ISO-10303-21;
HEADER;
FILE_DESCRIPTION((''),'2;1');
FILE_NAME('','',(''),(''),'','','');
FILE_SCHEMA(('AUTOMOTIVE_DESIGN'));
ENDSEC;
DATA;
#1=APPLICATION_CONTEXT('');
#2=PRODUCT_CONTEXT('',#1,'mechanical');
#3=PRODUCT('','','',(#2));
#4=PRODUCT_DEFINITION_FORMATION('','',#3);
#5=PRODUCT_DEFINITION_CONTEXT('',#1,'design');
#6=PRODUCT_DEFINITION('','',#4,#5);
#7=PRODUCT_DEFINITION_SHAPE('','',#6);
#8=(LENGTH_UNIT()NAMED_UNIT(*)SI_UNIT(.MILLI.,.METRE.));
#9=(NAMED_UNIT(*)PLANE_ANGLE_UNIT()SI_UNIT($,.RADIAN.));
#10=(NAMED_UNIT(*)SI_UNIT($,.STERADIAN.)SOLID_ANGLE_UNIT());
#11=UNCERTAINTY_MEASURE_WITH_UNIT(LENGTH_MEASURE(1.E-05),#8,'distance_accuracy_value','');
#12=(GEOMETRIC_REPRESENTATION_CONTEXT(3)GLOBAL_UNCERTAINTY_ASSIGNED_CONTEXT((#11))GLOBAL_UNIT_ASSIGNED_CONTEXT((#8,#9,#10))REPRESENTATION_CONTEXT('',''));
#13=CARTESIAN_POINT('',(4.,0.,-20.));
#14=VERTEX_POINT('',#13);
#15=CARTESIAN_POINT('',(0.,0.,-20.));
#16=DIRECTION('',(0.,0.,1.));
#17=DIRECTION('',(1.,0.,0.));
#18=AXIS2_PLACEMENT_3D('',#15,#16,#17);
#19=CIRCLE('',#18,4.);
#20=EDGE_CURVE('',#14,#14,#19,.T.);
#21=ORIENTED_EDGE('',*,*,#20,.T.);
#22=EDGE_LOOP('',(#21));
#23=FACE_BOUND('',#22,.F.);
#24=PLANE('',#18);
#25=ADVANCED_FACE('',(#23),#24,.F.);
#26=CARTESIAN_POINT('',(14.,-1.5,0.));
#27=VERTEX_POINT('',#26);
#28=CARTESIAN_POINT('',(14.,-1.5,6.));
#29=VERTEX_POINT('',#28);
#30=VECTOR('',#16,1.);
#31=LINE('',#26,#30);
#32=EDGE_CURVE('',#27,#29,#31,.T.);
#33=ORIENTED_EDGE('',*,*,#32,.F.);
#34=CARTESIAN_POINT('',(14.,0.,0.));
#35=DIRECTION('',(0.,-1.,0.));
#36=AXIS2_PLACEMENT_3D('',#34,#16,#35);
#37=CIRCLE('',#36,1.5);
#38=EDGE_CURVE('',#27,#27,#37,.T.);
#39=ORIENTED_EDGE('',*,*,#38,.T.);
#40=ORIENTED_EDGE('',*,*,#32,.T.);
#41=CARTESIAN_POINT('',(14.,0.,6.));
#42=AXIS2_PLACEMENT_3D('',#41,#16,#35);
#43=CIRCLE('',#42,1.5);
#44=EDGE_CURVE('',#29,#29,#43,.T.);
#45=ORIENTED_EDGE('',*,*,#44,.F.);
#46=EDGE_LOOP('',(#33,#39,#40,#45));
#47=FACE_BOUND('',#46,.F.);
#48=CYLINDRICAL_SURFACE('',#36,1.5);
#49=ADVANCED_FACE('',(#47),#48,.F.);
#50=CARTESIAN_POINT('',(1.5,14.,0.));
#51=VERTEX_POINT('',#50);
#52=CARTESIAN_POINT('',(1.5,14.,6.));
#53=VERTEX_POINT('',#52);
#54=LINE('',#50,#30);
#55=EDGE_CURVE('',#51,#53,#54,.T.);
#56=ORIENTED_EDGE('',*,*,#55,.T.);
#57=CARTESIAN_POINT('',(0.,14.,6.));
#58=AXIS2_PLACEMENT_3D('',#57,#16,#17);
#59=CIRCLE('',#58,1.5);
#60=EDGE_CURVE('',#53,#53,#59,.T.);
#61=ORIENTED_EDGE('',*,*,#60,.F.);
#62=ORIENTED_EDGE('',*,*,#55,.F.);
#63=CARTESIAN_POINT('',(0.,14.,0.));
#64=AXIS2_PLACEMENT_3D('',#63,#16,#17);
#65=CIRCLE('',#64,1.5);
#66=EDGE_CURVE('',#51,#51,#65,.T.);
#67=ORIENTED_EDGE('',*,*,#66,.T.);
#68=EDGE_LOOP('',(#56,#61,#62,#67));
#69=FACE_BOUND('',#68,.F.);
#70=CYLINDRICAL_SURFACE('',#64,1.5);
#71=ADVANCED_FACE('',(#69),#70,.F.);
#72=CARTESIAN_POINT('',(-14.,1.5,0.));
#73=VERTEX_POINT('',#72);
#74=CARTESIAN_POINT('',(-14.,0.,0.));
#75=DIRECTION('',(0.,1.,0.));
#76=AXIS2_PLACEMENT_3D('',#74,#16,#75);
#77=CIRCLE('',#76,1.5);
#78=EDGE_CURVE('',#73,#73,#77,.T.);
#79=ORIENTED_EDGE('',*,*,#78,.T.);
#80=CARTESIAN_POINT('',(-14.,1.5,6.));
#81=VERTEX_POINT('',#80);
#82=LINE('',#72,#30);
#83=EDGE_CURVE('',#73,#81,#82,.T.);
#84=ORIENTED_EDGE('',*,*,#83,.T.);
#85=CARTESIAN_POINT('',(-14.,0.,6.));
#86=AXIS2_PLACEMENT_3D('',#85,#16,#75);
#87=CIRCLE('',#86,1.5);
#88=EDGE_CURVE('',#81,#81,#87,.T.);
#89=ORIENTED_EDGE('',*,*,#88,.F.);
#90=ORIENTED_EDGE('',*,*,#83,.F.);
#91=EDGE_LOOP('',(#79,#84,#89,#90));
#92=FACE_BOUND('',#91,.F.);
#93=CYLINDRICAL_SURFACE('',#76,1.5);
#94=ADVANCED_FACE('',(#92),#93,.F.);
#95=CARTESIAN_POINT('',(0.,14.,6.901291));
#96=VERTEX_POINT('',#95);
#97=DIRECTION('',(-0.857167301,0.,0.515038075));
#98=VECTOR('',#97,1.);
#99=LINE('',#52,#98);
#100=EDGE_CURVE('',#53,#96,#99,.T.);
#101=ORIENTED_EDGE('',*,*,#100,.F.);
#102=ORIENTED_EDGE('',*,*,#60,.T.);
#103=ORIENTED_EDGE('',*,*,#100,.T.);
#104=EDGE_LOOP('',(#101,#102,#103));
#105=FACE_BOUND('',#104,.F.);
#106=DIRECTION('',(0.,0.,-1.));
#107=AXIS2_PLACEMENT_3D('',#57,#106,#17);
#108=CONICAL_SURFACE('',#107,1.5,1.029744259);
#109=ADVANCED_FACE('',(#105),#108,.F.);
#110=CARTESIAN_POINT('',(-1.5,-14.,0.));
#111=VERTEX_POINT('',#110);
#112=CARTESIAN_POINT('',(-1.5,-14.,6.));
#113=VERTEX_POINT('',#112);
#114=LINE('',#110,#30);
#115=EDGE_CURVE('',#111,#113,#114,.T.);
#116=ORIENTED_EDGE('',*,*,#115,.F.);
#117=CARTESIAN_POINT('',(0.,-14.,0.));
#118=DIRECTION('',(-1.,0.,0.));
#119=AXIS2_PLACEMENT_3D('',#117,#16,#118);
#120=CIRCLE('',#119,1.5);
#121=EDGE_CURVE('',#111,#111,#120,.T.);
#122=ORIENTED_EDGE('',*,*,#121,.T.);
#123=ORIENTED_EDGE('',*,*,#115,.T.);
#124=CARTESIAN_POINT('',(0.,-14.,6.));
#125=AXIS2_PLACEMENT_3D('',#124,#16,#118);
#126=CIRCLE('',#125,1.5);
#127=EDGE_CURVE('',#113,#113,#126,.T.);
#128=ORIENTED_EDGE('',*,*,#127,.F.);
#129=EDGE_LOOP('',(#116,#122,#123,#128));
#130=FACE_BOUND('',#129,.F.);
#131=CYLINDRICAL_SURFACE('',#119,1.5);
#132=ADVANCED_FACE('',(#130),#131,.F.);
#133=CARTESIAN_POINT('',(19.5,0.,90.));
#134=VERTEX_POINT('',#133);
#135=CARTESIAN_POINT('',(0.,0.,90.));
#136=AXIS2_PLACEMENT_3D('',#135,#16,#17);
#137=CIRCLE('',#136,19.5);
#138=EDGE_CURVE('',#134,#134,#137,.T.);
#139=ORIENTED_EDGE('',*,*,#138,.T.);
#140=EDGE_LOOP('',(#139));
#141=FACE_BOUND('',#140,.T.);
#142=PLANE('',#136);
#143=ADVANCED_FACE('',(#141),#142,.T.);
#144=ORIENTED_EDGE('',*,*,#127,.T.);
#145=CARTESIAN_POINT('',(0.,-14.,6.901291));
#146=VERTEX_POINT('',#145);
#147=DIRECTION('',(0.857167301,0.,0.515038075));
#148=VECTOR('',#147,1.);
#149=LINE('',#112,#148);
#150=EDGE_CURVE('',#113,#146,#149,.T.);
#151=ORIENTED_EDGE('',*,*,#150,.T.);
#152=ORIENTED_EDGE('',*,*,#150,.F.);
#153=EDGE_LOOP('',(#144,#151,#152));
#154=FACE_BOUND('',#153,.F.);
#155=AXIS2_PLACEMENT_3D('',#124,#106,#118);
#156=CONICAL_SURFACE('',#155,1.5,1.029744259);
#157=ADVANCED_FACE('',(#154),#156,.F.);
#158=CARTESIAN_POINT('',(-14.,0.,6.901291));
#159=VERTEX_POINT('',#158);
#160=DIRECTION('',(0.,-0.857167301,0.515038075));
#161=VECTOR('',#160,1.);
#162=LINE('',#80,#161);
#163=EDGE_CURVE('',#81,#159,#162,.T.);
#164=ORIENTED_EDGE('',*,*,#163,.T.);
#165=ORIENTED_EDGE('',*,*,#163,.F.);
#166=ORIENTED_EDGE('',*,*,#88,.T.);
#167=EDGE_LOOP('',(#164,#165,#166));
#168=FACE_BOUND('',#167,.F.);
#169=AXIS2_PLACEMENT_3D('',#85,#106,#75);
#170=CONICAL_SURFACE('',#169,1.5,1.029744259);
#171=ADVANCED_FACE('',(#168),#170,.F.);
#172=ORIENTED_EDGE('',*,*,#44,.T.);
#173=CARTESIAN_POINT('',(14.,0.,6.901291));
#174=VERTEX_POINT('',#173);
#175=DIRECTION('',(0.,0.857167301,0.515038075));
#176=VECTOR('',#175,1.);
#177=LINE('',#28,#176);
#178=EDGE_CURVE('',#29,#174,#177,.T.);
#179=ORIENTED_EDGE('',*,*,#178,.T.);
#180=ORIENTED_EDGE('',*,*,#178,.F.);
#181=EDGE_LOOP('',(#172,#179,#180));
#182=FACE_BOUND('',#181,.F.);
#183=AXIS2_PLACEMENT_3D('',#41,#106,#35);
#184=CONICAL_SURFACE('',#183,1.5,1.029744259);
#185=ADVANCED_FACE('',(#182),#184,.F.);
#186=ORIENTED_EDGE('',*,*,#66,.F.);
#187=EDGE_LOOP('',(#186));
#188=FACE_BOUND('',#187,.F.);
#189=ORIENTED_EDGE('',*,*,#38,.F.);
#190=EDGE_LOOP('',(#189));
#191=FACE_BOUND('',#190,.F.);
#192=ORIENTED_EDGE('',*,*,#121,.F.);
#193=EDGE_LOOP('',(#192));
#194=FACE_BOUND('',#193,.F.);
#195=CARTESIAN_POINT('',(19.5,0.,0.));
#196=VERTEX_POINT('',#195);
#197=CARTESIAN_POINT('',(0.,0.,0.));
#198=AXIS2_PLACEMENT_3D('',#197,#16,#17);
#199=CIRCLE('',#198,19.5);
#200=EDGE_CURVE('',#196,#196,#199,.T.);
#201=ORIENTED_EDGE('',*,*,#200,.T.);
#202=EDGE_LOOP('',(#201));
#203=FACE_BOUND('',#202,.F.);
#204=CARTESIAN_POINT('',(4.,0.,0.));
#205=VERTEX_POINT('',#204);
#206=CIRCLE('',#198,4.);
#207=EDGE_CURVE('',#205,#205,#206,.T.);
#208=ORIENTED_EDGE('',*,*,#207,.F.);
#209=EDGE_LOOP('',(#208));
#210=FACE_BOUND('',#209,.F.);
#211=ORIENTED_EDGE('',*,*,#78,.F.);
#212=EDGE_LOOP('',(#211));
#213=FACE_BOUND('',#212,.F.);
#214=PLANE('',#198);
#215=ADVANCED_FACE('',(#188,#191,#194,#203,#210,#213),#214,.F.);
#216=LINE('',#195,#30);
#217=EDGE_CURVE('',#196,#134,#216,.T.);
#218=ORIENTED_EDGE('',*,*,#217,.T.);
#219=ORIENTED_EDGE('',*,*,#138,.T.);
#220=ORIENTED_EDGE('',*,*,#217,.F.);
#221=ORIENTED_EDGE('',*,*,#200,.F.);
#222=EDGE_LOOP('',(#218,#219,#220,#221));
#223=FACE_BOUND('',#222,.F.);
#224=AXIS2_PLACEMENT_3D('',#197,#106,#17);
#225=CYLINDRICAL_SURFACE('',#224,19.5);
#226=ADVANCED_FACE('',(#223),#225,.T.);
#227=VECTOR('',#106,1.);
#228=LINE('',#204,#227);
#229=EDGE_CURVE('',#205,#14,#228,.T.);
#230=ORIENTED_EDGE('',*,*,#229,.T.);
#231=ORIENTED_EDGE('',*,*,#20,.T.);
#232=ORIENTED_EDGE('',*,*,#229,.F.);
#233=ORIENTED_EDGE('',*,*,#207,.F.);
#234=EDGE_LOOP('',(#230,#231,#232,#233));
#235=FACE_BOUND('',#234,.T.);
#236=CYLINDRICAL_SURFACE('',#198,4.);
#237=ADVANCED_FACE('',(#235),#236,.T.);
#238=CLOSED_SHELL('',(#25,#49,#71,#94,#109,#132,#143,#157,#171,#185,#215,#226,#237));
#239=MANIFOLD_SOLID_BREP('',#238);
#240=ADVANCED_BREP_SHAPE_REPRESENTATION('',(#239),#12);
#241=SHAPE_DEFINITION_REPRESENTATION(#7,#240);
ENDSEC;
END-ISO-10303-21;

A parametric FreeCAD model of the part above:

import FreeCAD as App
import Part
import Sketcher

doc = App.newDocument("Part")
params = doc.addObject("Spreadsheet::Sheet", "Params")
for row, (alias, value) in enumerate([
    ("sketch1_diameter", "39 mm"),
    ("pad1_length", "90 mm"),
    ("sketch2_diameter", "8 mm"),
    ("pad2_length", "20 mm"),
    ("sketch3_diameter", "3 mm"),
    ("hole_diameter", "3 mm"),
    ("hole_depth", "6 mm"),
], start=1):
    params.set(f"A{row}", alias)
    params.set(f"B{row}", "=" + value)
    params.setAlias(f"B{row}", alias)

body = doc.addObject("PartDesign::Body", "Body")

sketch1 = body.newObject("Sketcher::SketchObject", "Sketch")
sketch1.AttachmentSupport = (doc.getObject("XY_Plane"), [""])
sketch1.MapMode = "FlatFace"
sketch1.addGeometry(Part.Circle(App.Vector(0, 0, 0), App.Vector(0, 0, 1), 20), False)
sketch1.addConstraint([
    Sketcher.Constraint("Coincident", 0, 3, -1, 1),
    Sketcher.Constraint("Diameter", 0, 39.0),
])
sketch1.setExpression("Constraints[1]", "Params.sketch1_diameter")
pad1 = body.newObject("PartDesign::Pad", "Pad")
pad1.Profile = sketch1
pad1.setExpression("Length", "Params.pad1_length")

sketch2 = body.newObject("Sketcher::SketchObject", "Sketch001")
sketch2.AttachmentSupport = (doc.getObject("XY_Plane"), [""])
sketch2.MapMode = "FlatFace"
sketch2.addGeometry(Part.Circle(App.Vector(0, 0, 0), App.Vector(0, 0, 1), 4), False)
sketch2.addConstraint([
    Sketcher.Constraint("Coincident", 0, 3, -1, 1),
    Sketcher.Constraint("Diameter", 0, 8.0),
])
sketch2.setExpression("Constraints[1]", "Params.sketch2_diameter")
pad2 = body.newObject("PartDesign::Pad", "Pad001")
pad2.Profile = sketch2
pad2.setExpression("Length", "Params.pad2_length")
pad2.Reversed = True

sketch3 = body.newObject("Sketcher::SketchObject", "Sketch002")
sketch3.AttachmentSupport = (doc.getObject("XY_Plane"), [""])
sketch3.MapMode = "FlatFace"
sketch3.addGeometry(Part.Circle(App.Vector(-14, 0, 0), App.Vector(0, 0, 1), 1.5), False)
sketch3.addConstraint([
    Sketcher.Constraint("PointOnObject", 0, 3, -1),
    Sketcher.Constraint("Diameter", 0, 3.0),
    Sketcher.Constraint("DistanceX", 0, 3, -1, 1, 14.0),
])
sketch3.setExpression("Constraints[1]", "Params.sketch3_diameter")
doc.recompute()
hole = body.newObject("PartDesign::Hole", "Hole")
hole.Profile = sketch3
hole.ThreadType = "None"
hole.setExpression("Diameter", "Params.hole_diameter")
hole.DepthType = "Dimension"
hole.setExpression("Depth", "Params.hole_depth")
hole.DrillPoint = "Angled"
hole.DrillPointAngle = 118
hole.Reversed = True
doc.recompute()

polarpattern = body.newObject("PartDesign::PolarPattern", "PolarPattern")
polarpattern.Originals = [hole]
polarpattern.Axis = (doc.getObject("Z_Axis"), [""])
polarpattern.Angle = 360
polarpattern.Occurrences = 4
body.Tip = polarpattern

doc.recompute()
